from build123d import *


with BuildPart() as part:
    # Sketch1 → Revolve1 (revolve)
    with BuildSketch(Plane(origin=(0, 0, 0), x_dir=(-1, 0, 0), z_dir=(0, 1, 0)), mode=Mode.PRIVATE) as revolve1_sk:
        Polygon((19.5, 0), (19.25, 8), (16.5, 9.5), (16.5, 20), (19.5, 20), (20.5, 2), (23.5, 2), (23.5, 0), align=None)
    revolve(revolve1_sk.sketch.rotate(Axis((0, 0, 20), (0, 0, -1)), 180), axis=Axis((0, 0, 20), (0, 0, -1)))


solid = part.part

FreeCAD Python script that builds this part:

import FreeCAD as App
import Part
import Sketcher

V = App.Vector


def add_polygon(sketch, points):
    """Adds a closed chain of lines whose ends are joined by coincident constraints."""
    first, n = sketch.GeometryCount, len(points)
    for a, b in zip(points, points[1:] + points[:1]):
        sketch.addGeometry(Part.LineSegment(App.Vector(*a, 0), App.Vector(*b, 0)), False)
    for i in range(n):
        sketch.addConstraint(Sketcher.Constraint("Coincident", first + i, 2, first + (i + 1) % n, 1))

doc = App.newDocument("Part")
body = doc.addObject("PartDesign::Body", "Body")

# Sketch on XZ plane
sketch1 = body.newObject("Sketcher::SketchObject", "Sketch")
sketch1.AttachmentSupport = (doc.getObject("XZ_Plane"), [""])
sketch1.MapMode = "FlatFace"
add_polygon(sketch1, [(-19.2, 8), (-19.5, 0), (-23.5, 0), (-23.5, 2), (-20.5, 2), (-19.5, 20), (-16.5, 20), (-16.5, 9.5)])  # lines 0-7
sketch1.addConstraint([
    Sketcher.Constraint("Horizontal", 1),
    Sketcher.Constraint("Vertical", 2),
    Sketcher.Constraint("Horizontal", 3),
    Sketcher.Constraint("Horizontal", 5),
    Sketcher.Constraint("Vertical", 6),
    Sketcher.Constraint("PointOnObject", 0, 2, -1),
    Sketcher.Constraint("Vertical", 0, 2, 4, 2),
    Sketcher.Constraint("Equal", 3, 5),
    Sketcher.Constraint("DistanceX", 1, 2, 1, 1, 4.0),
    Sketcher.Constraint("DistanceX", 3, 1, 3, 2, 3.0),
    Sketcher.Constraint("DistanceY", 2, 1, 2, 2, 2.0),
    Sketcher.Constraint("DistanceY", 6, 2, 6, 1, 10.5),
    Sketcher.Constraint("DistanceY", -1, 1, 4, 2, 20.0),
    Sketcher.Constraint("DistanceY", -1, 1, 7, 2, 8.0),
    Sketcher.Constraint("DistanceX", 0, 2, -1, 1, 19.5),
    Sketcher.Constraint("DistanceX", 7, 2, -1, 1, 19.25),
])
revolution = body.newObject("PartDesign::Revolution", "Revolution")
revolution.Profile = sketch1
revolution.ReferenceAxis = (sketch1, ["V_Axis"])
revolution.Angle = 360

doc.recompute()
